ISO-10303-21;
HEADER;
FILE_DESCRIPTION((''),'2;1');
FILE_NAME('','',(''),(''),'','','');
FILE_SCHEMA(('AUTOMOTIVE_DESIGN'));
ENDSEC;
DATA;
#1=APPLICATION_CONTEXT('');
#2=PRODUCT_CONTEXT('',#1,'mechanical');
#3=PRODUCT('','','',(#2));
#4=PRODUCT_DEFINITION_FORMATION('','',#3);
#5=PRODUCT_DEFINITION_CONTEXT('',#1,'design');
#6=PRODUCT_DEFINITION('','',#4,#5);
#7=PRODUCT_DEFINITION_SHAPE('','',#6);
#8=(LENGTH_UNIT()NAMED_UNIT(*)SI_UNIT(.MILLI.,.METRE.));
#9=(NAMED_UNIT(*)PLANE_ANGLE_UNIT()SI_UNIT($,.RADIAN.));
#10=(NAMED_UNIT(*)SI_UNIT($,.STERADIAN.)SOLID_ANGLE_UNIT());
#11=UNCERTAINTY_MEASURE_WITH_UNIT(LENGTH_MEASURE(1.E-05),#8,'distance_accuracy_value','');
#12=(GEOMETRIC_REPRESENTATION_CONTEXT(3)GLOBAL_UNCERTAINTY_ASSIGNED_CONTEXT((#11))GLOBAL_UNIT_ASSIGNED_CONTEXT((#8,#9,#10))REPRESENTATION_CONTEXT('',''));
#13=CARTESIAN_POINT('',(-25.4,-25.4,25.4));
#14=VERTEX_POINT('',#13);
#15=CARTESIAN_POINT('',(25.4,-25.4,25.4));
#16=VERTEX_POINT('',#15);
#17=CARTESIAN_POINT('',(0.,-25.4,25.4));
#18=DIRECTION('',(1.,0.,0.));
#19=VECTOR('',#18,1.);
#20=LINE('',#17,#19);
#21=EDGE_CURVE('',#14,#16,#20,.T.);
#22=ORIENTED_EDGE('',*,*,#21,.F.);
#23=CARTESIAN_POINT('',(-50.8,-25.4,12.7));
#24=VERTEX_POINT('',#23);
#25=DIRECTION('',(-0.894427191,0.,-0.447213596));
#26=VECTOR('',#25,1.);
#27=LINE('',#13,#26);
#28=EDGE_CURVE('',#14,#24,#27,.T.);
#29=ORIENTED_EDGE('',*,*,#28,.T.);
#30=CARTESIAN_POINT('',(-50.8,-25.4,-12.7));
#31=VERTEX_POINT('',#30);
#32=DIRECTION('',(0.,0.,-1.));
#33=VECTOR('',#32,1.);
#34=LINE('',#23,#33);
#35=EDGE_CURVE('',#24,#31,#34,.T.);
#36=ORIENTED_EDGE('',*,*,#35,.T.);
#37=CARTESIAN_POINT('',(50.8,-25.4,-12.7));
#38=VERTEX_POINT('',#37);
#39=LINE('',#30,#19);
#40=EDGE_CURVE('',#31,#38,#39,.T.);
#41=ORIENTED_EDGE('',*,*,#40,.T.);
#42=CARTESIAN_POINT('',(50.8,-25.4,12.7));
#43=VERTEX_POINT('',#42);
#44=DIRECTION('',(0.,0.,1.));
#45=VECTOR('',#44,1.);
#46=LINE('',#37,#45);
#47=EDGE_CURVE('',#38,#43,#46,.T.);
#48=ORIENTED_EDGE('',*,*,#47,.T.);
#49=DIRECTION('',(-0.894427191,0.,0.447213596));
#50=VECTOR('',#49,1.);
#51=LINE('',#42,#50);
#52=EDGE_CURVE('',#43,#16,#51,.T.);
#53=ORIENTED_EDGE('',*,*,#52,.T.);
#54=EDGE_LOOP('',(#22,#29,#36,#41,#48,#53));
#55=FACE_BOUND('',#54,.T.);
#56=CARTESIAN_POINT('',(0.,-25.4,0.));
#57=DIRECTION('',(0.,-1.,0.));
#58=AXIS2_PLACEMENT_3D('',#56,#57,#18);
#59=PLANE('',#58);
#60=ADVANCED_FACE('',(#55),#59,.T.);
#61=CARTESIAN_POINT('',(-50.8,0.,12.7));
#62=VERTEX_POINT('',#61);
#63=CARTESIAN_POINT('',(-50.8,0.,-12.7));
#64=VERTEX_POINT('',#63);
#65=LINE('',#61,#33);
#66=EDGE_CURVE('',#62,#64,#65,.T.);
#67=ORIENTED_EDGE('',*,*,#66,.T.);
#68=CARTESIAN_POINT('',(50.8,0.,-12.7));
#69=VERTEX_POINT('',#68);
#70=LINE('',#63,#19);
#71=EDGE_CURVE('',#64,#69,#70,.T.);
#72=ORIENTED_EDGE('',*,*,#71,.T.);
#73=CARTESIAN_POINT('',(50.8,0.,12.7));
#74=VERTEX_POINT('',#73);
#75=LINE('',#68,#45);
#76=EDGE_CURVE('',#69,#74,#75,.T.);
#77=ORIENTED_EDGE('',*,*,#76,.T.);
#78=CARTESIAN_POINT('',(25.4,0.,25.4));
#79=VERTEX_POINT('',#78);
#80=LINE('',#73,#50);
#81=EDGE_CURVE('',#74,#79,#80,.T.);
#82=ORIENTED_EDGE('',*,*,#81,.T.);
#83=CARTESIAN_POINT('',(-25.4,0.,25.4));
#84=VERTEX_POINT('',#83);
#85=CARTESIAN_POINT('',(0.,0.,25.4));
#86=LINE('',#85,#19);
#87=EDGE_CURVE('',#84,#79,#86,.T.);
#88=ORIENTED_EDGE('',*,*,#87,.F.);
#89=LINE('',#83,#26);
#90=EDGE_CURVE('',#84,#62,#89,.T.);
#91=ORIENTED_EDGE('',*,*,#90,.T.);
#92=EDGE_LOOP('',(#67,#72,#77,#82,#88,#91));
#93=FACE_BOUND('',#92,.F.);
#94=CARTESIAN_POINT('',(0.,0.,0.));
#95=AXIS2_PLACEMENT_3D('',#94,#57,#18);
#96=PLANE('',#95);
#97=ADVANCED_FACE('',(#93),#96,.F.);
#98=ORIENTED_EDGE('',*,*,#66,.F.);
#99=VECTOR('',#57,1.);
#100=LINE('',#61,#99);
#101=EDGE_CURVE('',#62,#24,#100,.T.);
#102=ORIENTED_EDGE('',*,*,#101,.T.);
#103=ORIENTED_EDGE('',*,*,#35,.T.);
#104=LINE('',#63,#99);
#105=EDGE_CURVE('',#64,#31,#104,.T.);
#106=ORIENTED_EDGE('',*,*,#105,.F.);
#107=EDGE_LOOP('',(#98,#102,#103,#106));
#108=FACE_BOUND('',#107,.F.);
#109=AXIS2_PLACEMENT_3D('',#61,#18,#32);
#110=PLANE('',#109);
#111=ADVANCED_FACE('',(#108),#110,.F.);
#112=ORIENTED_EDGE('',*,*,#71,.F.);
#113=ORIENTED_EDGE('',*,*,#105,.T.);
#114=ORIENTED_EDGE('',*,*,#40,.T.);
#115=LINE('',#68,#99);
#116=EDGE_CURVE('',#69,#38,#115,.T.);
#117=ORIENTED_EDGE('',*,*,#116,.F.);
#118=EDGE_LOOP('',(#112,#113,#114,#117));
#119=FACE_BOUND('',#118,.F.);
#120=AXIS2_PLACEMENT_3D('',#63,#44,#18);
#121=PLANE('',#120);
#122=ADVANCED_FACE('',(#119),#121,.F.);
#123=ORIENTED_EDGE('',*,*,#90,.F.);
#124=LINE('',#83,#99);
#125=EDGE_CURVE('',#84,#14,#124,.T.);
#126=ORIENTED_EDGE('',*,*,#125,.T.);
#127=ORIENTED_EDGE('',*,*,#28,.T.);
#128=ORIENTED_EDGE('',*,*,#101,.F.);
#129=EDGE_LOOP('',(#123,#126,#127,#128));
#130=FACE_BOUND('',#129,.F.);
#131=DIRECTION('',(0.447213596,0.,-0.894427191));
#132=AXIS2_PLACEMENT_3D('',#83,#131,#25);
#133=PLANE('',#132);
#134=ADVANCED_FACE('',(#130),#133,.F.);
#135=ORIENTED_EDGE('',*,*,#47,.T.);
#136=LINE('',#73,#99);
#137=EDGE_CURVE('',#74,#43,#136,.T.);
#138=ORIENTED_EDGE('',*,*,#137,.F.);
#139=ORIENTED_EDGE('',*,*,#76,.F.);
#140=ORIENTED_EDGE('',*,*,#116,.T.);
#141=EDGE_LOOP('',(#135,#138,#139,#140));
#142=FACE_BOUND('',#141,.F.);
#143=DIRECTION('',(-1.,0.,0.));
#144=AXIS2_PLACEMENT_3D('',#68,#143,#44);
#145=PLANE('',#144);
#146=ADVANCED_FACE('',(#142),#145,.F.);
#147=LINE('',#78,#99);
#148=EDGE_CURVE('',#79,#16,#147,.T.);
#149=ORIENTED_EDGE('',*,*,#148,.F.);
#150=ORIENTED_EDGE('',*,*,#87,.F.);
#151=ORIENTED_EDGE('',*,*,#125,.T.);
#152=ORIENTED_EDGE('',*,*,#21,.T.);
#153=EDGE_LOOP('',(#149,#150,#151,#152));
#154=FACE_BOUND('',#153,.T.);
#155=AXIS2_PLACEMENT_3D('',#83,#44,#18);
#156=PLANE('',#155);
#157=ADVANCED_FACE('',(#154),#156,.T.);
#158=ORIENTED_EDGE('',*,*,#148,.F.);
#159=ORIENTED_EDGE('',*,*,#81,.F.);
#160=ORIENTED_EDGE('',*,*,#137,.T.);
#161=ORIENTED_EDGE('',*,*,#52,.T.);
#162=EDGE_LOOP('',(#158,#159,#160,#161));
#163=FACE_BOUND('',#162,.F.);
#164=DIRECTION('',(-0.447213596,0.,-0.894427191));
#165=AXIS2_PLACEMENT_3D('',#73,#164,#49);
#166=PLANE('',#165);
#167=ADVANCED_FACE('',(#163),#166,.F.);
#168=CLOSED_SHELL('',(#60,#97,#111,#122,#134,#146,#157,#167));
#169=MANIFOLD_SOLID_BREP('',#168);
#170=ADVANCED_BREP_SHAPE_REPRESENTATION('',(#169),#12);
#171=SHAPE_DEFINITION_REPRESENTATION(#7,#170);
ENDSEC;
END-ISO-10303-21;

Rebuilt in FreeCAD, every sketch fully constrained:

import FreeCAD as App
import Part
import Sketcher
from FreeCAD import Vector
Q = App.Units.Quantity

doc = App.newDocument("Part")
params = doc.addObject("Spreadsheet::Sheet", "Params")
for row, (alias, value) in enumerate([
    ("sketch1_width", "4 in"),
    ("sketch1_width2", "2 in"),
    ("sketch1_height", "1 in"),
    ("pad1_length", "1 in"),
], start=1):
    params.set(f"A{row}", alias)
    params.set(f"B{row}", "=" + value)
    params.setAlias(f"B{row}", alias)

body = doc.addObject("PartDesign::Body", "Body")

# Sketch on XZ plane
sketch1 = body.newObject("Sketcher::SketchObject", "Sketch")
sketch1.AttachmentSupport = (doc.getObject("XZ_Plane"), [""])
sketch1.MapMode = "FlatFace"
sketch1.addGeometry(Part.LineSegment(Vector(-51, -13, 0), Vector(51, -13, 0)), False)
sketch1.addGeometry(Part.LineSegment(Vector(51, -13, 0), Vector(51, 13, 0)), False)
sketch1.addGeometry(Part.LineSegment(Vector(51, 13, 0), Vector(25, 25, 0)), False)
sketch1.addGeometry(Part.LineSegment(Vector(25, 25, 0), Vector(-25, 25, 0)), False)
sketch1.addGeometry(Part.LineSegment(Vector(-25, 25, 0), Vector(-51, 13, 0)), False)
sketch1.addGeometry(Part.LineSegment(Vector(-51, 13, 0), Vector(-51, -13, 0)), False)
sketch1.addConstraint(Sketcher.Constraint("Coincident", 0, 2, 1, 1))
sketch1.addConstraint(Sketcher.Constraint("Coincident", 1, 2, 2, 1))
sketch1.addConstraint(Sketcher.Constraint("Coincident", 2, 2, 3, 1))
sketch1.addConstraint(Sketcher.Constraint("Coincident", 3, 2, 4, 1))
sketch1.addConstraint(Sketcher.Constraint("Coincident", 4, 2, 5, 1))
sketch1.addConstraint(Sketcher.Constraint("Coincident", 5, 2, 0, 1))
sketch1.addConstraint(Sketcher.Constraint("Horizontal", 0))
sketch1.addConstraint(Sketcher.Constraint("Vertical", 1))
sketch1.addConstraint(Sketcher.Constraint("Horizontal", 3))
sketch1.addConstraint(Sketcher.Constraint("Vertical", 5))
sketch1.addConstraint(Sketcher.Constraint("Symmetric", 0, 2, 4, 2, -1, 1))
sketch1.addConstraint(Sketcher.Constraint("Horizontal", 1, 2, 4, 2))
sketch1.addConstraint(Sketcher.Constraint("Equal", 2, 4))
sketch1.addConstraint(Sketcher.Constraint("DistanceX", 0, 1, 0, 2, Q("4 in")))
sketch1.addConstraint(Sketcher.Constraint("DistanceX", 3, 2, 3, 1, Q("2 in")))
sketch1.addConstraint(Sketcher.Constraint("DistanceY", 1, 1, 1, 2, Q("1 in")))
sketch1.addConstraint(Sketcher.Constraint("DistanceY", -1, 1, 2, 2, Q("1 in")))
sketch1.setExpression("Constraints[13]", "Params.sketch1_width")
sketch1.setExpression("Constraints[14]", "Params.sketch1_width2")
sketch1.setExpression("Constraints[15]", "Params.sketch1_height")
pad1 = body.newObject("PartDesign::Pad", "Pad")
pad1.Profile = sketch1
pad1.setExpression("Length", "Params.pad1_length")

doc.recompute()
